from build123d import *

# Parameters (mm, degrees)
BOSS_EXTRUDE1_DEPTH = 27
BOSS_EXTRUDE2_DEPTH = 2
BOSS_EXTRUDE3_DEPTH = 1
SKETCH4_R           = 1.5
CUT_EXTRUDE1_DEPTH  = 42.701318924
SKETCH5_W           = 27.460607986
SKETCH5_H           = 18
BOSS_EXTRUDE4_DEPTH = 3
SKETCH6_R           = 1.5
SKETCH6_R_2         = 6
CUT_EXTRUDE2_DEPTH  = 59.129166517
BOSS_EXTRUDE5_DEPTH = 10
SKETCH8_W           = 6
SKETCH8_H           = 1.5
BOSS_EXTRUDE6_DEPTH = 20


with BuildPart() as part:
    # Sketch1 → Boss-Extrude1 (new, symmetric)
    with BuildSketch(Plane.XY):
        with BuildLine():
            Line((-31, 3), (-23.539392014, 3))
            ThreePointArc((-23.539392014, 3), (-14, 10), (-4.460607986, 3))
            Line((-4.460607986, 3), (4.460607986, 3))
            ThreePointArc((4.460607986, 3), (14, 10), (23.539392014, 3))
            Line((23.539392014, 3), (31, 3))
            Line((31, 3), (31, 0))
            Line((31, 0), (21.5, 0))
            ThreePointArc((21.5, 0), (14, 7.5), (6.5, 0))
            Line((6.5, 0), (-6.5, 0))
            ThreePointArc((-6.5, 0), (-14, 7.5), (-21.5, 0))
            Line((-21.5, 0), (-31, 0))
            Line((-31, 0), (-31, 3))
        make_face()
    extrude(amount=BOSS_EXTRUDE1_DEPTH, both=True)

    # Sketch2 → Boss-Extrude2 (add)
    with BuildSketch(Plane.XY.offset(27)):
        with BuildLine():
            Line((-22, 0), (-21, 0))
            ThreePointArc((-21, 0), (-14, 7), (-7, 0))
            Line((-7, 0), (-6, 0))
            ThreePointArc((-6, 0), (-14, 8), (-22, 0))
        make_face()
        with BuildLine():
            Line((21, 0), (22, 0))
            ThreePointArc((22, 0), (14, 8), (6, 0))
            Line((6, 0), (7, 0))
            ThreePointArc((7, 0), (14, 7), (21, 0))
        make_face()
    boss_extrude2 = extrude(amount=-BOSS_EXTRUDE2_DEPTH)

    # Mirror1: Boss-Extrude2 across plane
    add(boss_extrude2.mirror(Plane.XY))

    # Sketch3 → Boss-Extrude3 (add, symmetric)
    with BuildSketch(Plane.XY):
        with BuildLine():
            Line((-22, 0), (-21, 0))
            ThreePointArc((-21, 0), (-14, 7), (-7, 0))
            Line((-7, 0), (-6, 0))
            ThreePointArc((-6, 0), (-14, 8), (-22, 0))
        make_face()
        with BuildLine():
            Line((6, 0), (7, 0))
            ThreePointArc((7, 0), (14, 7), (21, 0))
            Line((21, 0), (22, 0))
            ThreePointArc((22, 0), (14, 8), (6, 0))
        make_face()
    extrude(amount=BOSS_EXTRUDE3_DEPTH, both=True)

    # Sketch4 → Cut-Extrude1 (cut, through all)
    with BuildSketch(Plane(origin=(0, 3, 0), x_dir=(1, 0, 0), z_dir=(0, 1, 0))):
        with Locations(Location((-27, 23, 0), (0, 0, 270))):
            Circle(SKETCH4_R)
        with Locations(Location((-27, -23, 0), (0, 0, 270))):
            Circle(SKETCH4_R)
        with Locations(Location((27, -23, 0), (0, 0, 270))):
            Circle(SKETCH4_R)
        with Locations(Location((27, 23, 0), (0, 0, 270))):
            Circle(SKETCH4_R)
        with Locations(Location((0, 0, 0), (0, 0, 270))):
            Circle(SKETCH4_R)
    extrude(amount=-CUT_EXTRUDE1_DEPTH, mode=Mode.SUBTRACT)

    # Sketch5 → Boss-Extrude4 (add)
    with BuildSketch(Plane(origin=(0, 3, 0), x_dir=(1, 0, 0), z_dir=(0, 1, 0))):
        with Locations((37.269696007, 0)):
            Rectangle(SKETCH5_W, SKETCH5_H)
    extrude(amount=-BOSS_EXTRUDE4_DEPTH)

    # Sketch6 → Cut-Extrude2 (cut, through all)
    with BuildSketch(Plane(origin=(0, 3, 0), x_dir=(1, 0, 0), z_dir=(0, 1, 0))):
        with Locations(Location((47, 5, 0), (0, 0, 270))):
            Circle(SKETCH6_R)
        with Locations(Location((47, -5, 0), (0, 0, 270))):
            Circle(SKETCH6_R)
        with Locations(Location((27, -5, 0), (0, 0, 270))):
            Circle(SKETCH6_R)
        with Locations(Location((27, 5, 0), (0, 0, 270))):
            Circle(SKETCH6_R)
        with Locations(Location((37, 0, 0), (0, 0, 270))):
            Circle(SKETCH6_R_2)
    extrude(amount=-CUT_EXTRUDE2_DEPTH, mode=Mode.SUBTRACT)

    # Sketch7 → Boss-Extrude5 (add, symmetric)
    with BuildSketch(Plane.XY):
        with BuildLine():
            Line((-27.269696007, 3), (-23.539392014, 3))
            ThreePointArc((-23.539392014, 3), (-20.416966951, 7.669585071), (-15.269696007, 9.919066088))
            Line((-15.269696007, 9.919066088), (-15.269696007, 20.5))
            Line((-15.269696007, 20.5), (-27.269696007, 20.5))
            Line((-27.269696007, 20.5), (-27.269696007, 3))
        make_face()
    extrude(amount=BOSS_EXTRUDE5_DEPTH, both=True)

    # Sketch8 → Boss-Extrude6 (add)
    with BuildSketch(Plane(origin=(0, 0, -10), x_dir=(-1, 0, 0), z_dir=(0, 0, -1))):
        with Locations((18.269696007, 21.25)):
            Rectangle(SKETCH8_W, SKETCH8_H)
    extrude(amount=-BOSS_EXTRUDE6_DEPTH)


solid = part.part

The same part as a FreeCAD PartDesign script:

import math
import FreeCAD as App
import Part
import Sketcher
from FreeCAD import Vector
Q = App.Units.Quantity


def add_polygon(sketch, points):
    """Adds a closed chain of lines whose ends are joined by coincident constraints."""
    first, n = sketch.GeometryCount, len(points)
    for a, b in zip(points, points[1:] + points[:1]):
        sketch.addGeometry(Part.LineSegment(App.Vector(*a, 0), App.Vector(*b, 0)), False)
    for i in range(n):
        sketch.addConstraint(Sketcher.Constraint("Coincident", first + i, 2, first + (i + 1) % n, 1))

doc = App.newDocument("Part")
params = doc.addObject("Spreadsheet::Sheet", "Params")
for row, (alias, value) in enumerate([
    ("sketch1_radius", "10 mm"),
    ("sketch1_radius2", "7.5 mm"),
    ("sketch1_width", "13 mm"),
    ("sketch1_height", "3 mm"),
    ("sketch1_width2", "9.5 mm"),
    ("pad1_length", "54 mm"),
    ("sketch2_radius", "7 mm"),
    ("sketch2_radius2", "8 mm"),
    ("pad2_length", "2 mm"),
    ("sketch3_radius", "7 mm"),
    ("sketch3_radius2", "8 mm"),
    ("pad3_length", "2 mm"),
    ("sketch4_diameter", "3 mm"),
    ("sketch5_height", "18 mm"),
    ("pad4_length", "3 mm"),
    ("sketch6_diameter", "3 mm"),
    ("sketch6_diameter2", "12 mm"),
    ("sketch7_radius", "10 mm"),
    ("sketch7_width", "12 mm"),
    ("sketch7_height", "17.5 mm"),
    ("pad5_length", "20 mm"),
    ("sketch8_width", "6 mm"),
    ("sketch8_height", "1.5 mm"),
    ("pad6_length", "20 mm"),
], start=1):
    params.set(f"A{row}", alias)
    params.set(f"B{row}", "=" + value)
    params.setAlias(f"B{row}", alias)

body = doc.addObject("PartDesign::Body", "Body")

# Sketch on XY plane
sketch1 = body.newObject("Sketcher::SketchObject", "Sketch")
sketch1.AttachmentSupport = (doc.getObject("XY_Plane"), [""])
sketch1.MapMode = "FlatFace"
sketch1.addGeometry(Part.LineSegment(Vector(-23.5, 3, 0), Vector(-31, 3, 0)), False)
sketch1.addGeometry(Part.LineSegment(Vector(-31, 3, 0), Vector(-31, 0, 0)), False)
sketch1.addGeometry(Part.LineSegment(Vector(-31, 0, 0), Vector(-21.5, 0, 0)), False)
sketch1.addGeometry(Part.ArcOfCircle(Part.Circle(Vector(-14, 0, 0), Vector(0, 0, 1), 7.5), math.radians(0), math.radians(180)), False)
sketch1.addGeometry(Part.LineSegment(Vector(-6.5, 0, 0), Vector(6.5, 0, 0)), False)
sketch1.addGeometry(Part.ArcOfCircle(Part.Circle(Vector(14, 0, 0), Vector(0, 0, 1), 7.5), math.radians(0), math.radians(180)), False)
sketch1.addGeometry(Part.LineSegment(Vector(21.5, 0, 0), Vector(31, 0, 0)), False)
sketch1.addGeometry(Part.LineSegment(Vector(31, 0, 0), Vector(31, 3, 0)), False)
sketch1.addGeometry(Part.LineSegment(Vector(31, 3, 0), Vector(23.5, 3, 0)), False)
sketch1.addGeometry(Part.ArcOfCircle(Part.Circle(Vector(14, 0, 0), Vector(0, 0, 1), 10), math.radians(17), math.radians(163)), False)
sketch1.addGeometry(Part.LineSegment(Vector(4.5, 3, 0), Vector(-4.5, 3, 0)), False)
sketch1.addGeometry(Part.ArcOfCircle(Part.Circle(Vector(-14, 0, 0), Vector(0, 0, 1), 10), math.radians(17), math.radians(163)), False)
sketch1.addConstraint(Sketcher.Constraint("Coincident", 0, 2, 1, 1))
sketch1.addConstraint(Sketcher.Constraint("Coincident", 1, 2, 2, 1))
sketch1.addConstraint(Sketcher.Constraint("Coincident", 2, 2, 3, 2))
sketch1.addConstraint(Sketcher.Constraint("Coincident", 3, 1, 4, 1))
sketch1.addConstraint(Sketcher.Constraint("Coincident", 4, 2, 5, 2))
sketch1.addConstraint(Sketcher.Constraint("Coincident", 5, 1, 6, 1))
sketch1.addConstraint(Sketcher.Constraint("Coincident", 6, 2, 7, 1))
sketch1.addConstraint(Sketcher.Constraint("Coincident", 7, 2, 8, 1))
sketch1.addConstraint(Sketcher.Constraint("Coincident", 8, 2, 9, 1))
sketch1.addConstraint(Sketcher.Constraint("Coincident", 9, 2, 10, 1))
sketch1.addConstraint(Sketcher.Constraint("Coincident", 10, 2, 11, 1))
sketch1.addConstraint(Sketcher.Constraint("Coincident", 11, 2, 0, 1))
sketch1.addConstraint(Sketcher.Constraint("Horizontal", 0))
sketch1.addConstraint(Sketcher.Constraint("Vertical", 1))
sketch1.addConstraint(Sketcher.Constraint("Horizontal", 2))
sketch1.addConstraint(Sketcher.Constraint("Horizontal", 4))
sketch1.addConstraint(Sketcher.Constraint("Horizontal", 6))
sketch1.addConstraint(Sketcher.Constraint("Vertical", 7))
sketch1.addConstraint(Sketcher.Constraint("Horizontal", 8))
sketch1.addConstraint(Sketcher.Constraint("Horizontal", 10))
sketch1.addConstraint(Sketcher.Constraint("Coincident", 9, 3, 5, 3))
sketch1.addConstraint(Sketcher.Constraint("Coincident", 11, 3, 3, 3))
sketch1.addConstraint(Sketcher.Constraint("Equal", 3, 5))
sketch1.addConstraint(Sketcher.Constraint("Equal", 9, 11))
sketch1.addConstraint(Sketcher.Constraint("Symmetric", 3, 3, 5, 3, -1, 1))
sketch1.addConstraint(Sketcher.Constraint("Symmetric", 1, 2, 6, 2, -1, 1))
sketch1.addConstraint(Sketcher.Constraint("Symmetric", 8, 2, 11, 2, -2))
sketch1.addConstraint(Sketcher.Constraint("PointOnObject", 1, 2, -1))
sketch1.addConstraint(Sketcher.Constraint("PointOnObject", 3, 1, -1))
sketch1.addConstraint(Sketcher.Constraint("Horizontal", 8, 2, 9, 2))
sketch1.addConstraint(Sketcher.Constraint("Radius", 9, Q("10 mm")))
sketch1.addConstraint(Sketcher.Constraint("Radius", 3, Q("7.5 mm")))
sketch1.addConstraint(Sketcher.Constraint("DistanceX", 4, 1, 4, 2, Q("13 mm")))
sketch1.addConstraint(Sketcher.Constraint("DistanceY", 1, 2, 1, 1, Q("3 mm")))
sketch1.addConstraint(Sketcher.Constraint("DistanceX", 2, 1, 2, 2, Q("9.5 mm")))
sketch1.setExpression("Constraints[30]", "Params.sketch1_radius")
sketch1.setExpression("Constraints[31]", "Params.sketch1_radius2")
sketch1.setExpression("Constraints[32]", "Params.sketch1_width")
sketch1.setExpression("Constraints[33]", "Params.sketch1_height")
sketch1.setExpression("Constraints[34]", "Params.sketch1_width2")
pad1 = body.newObject("PartDesign::Pad", "Pad")
pad1.Profile = sketch1
pad1.setExpression("Length", "Params.pad1_length")
pad1.Midplane = True

# Sketch on XY plane
sketch2 = body.newObject("Sketcher::SketchObject", "Sketch001")
sketch2.AttachmentSupport = (doc.getObject("XY_Plane"), [""])
sketch2.MapMode = "FlatFace"
sketch2.AttachmentOffset = App.Placement(Vector(0, 0, 27), App.Rotation())
sketch2.addGeometry(Part.LineSegment(Vector(-22, 0, 0), Vector(-21, 0, 0)), False)
sketch2.addGeometry(Part.ArcOfCircle(Part.Circle(Vector(-14, 0, 0), Vector(0, 0, 1), 7), math.radians(0), math.radians(180)), False)
sketch2.addGeometry(Part.LineSegment(Vector(-7, 0, 0), Vector(-6, 0, 0)), False)
sketch2.addGeometry(Part.ArcOfCircle(Part.Circle(Vector(-14, 0, 0), Vector(0, 0, 1), 8), math.radians(0), math.radians(180)), False)
sketch2.addGeometry(Part.LineSegment(Vector(21, 0, 0), Vector(22, 0, 0)), False)
sketch2.addGeometry(Part.ArcOfCircle(Part.Circle(Vector(14, 0, 0), Vector(0, 0, 1), 8), math.radians(0), math.radians(180)), False)
sketch2.addGeometry(Part.LineSegment(Vector(6, 0, 0), Vector(7, 0, 0)), False)
sketch2.addGeometry(Part.ArcOfCircle(Part.Circle(Vector(14, 0, 0), Vector(0, 0, 1), 7), math.radians(0), math.radians(180)), False)
sketch2.addConstraint(Sketcher.Constraint("Coincident", 0, 2, 1, 2))
sketch2.addConstraint(Sketcher.Constraint("Coincident", 1, 1, 2, 1))
sketch2.addConstraint(Sketcher.Constraint("Coincident", 2, 2, 3, 1))
sketch2.addConstraint(Sketcher.Constraint("Coincident", 3, 2, 0, 1))
sketch2.addConstraint(Sketcher.Constraint("Coincident", 4, 2, 5, 1))
sketch2.addConstraint(Sketcher.Constraint("Coincident", 5, 2, 6, 1))
sketch2.addConstraint(Sketcher.Constraint("Coincident", 6, 2, 7, 2))
sketch2.addConstraint(Sketcher.Constraint("Coincident", 7, 1, 4, 1))
sketch2.addConstraint(Sketcher.Constraint("Horizontal", 0))
sketch2.addConstraint(Sketcher.Constraint("Horizontal", 2))
sketch2.addConstraint(Sketcher.Constraint("Horizontal", 4))
sketch2.addConstraint(Sketcher.Constraint("Horizontal", 6))
sketch2.addConstraint(Sketcher.Constraint("Coincident", 3, 3, 1, 3))
sketch2.addConstraint(Sketcher.Constraint("Coincident", 7, 3, 5, 3))
sketch2.addConstraint(Sketcher.Constraint("Equal", 3, 5))
sketch2.addConstraint(Sketcher.Constraint("Equal", 1, 7))
sketch2.addConstraint(Sketcher.Constraint("Symmetric", 1, 3, 5, 3, -1, 1))
sketch2.addConstraint(Sketcher.Constraint("PointOnObject", 1, 3, -1))
sketch2.addConstraint(Sketcher.Constraint("PointOnObject", 0, 2, -1))
sketch2.addConstraint(Sketcher.Constraint("PointOnObject", 1, 1, -1))
sketch2.addConstraint(Sketcher.Constraint("PointOnObject", 4, 2, -1))
sketch2.addConstraint(Sketcher.Constraint("PointOnObject", 5, 2, -1))
sketch2.addConstraint(Sketcher.Constraint("Radius", 1, Q("7 mm")))
sketch2.addConstraint(Sketcher.Constraint("Radius", 3, Q("8 mm")))
sketch2.addConstraint(Sketcher.Constraint("DistanceX", 1, 3, -1, 1, Q("14 mm")))
sketch2.setExpression("Constraints[22]", "Params.sketch2_radius")
sketch2.setExpression("Constraints[23]", "Params.sketch2_radius2")
pad2 = body.newObject("PartDesign::Pad", "Pad001")
pad2.Profile = sketch2
pad2.setExpression("Length", "Params.pad2_length")
pad2.Reversed = True
doc.recompute()

mirrored = body.newObject("PartDesign::Mirrored", "Mirrored")
mirrored.Originals = [pad2]
mirrored.MirrorPlane = (doc.getObject("XY_Plane"), [""])
body.Tip = mirrored

# Sketch on XY plane
sketch3 = body.newObject("Sketcher::SketchObject", "Sketch002")
sketch3.AttachmentSupport = (doc.getObject("XY_Plane"), [""])
sketch3.MapMode = "FlatFace"
sketch3.addGeometry(Part.LineSegment(Vector(-22, 0, 0), Vector(-21, 0, 0)), False)
sketch3.addGeometry(Part.ArcOfCircle(Part.Circle(Vector(-14, 0, 0), Vector(0, 0, 1), 7), math.radians(0), math.radians(180)), False)
sketch3.addGeometry(Part.LineSegment(Vector(-7, 0, 0), Vector(-6, 0, 0)), False)
sketch3.addGeometry(Part.ArcOfCircle(Part.Circle(Vector(-14, 0, 0), Vector(0, 0, 1), 8), math.radians(0), math.radians(180)), False)
sketch3.addGeometry(Part.LineSegment(Vector(6, 0, 0), Vector(7, 0, 0)), False)
sketch3.addGeometry(Part.ArcOfCircle(Part.Circle(Vector(14, 0, 0), Vector(0, 0, 1), 7), math.radians(0), math.radians(180)), False)
sketch3.addGeometry(Part.LineSegment(Vector(21, 0, 0), Vector(22, 0, 0)), False)
sketch3.addGeometry(Part.ArcOfCircle(Part.Circle(Vector(14, 0, 0), Vector(0, 0, 1), 8), math.radians(0), math.radians(180)), False)
sketch3.addConstraint(Sketcher.Constraint("Coincident", 0, 2, 1, 2))
sketch3.addConstraint(Sketcher.Constraint("Coincident", 1, 1, 2, 1))
sketch3.addConstraint(Sketcher.Constraint("Coincident", 2, 2, 3, 1))
sketch3.addConstraint(Sketcher.Constraint("Coincident", 3, 2, 0, 1))
sketch3.addConstraint(Sketcher.Constraint("Coincident", 4, 2, 5, 2))
sketch3.addConstraint(Sketcher.Constraint("Coincident", 5, 1, 6, 1))
sketch3.addConstraint(Sketcher.Constraint("Coincident", 6, 2, 7, 1))
sketch3.addConstraint(Sketcher.Constraint("Coincident", 7, 2, 4, 1))
sketch3.addConstraint(Sketcher.Constraint("Horizontal", 0))
sketch3.addConstraint(Sketcher.Constraint("Horizontal", 2))
sketch3.addConstraint(Sketcher.Constraint("Horizontal", 4))
sketch3.addConstraint(Sketcher.Constraint("Horizontal", 6))
sketch3.addConstraint(Sketcher.Constraint("Coincident", 3, 3, 1, 3))
sketch3.addConstraint(Sketcher.Constraint("Coincident", 7, 3, 5, 3))
sketch3.addConstraint(Sketcher.Constraint("Equal", 1, 5))
sketch3.addConstraint(Sketcher.Constraint("Equal", 3, 7))
sketch3.addConstraint(Sketcher.Constraint("Symmetric", 1, 3, 5, 3, -1, 1))
sketch3.addConstraint(Sketcher.Constraint("PointOnObject", 1, 3, -1))
sketch3.addConstraint(Sketcher.Constraint("PointOnObject", 0, 2, -1))
sketch3.addConstraint(Sketcher.Constraint("PointOnObject", 1, 1, -1))
sketch3.addConstraint(Sketcher.Constraint("PointOnObject", 4, 2, -1))
sketch3.addConstraint(Sketcher.Constraint("PointOnObject", 5, 1, -1))
sketch3.addConstraint(Sketcher.Constraint("Radius", 1, Q("7 mm")))
sketch3.addConstraint(Sketcher.Constraint("Radius", 3, Q("8 mm")))
sketch3.addConstraint(Sketcher.Constraint("DistanceX", 1, 3, -1, 1, Q("14 mm")))
sketch3.setExpression("Constraints[22]", "Params.sketch3_radius")
sketch3.setExpression("Constraints[23]", "Params.sketch3_radius2")
pad3 = body.newObject("PartDesign::Pad", "Pad002")
pad3.Profile = sketch3
pad3.setExpression("Length", "Params.pad3_length")
pad3.Midplane = True

# Sketch on XZ plane
sketch4 = body.newObject("Sketcher::SketchObject", "Sketch003")
sketch4.AttachmentSupport = (doc.getObject("XZ_Plane"), [""])
sketch4.MapMode = "FlatFace"
sketch4.AttachmentOffset = App.Placement(Vector(0, 0, -3), App.Rotation())
sketch4.addGeometry(Part.Circle(Vector(-27, -23, 0), Vector(0, 0, 1), 1.5), False)
sketch4.addGeometry(Part.Circle(Vector(-27, 23, 0), Vector(0, 0, 1), 1.5), False)
sketch4.addGeometry(Part.Circle(Vector(27, 23, 0), Vector(0, 0, 1), 1.5), False)
sketch4.addGeometry(Part.Circle(Vector(27, -23, 0), Vector(0, 0, 1), 1.5), False)
sketch4.addGeometry(Part.Circle(Vector(0, 0, 0), Vector(0, 0, 1), 1.5), False)
sketch4.addConstraint(Sketcher.Constraint("Coincident", 4, 3, -1, 1))
sketch4.addConstraint(Sketcher.Constraint("Equal", 0, 1))
sketch4.addConstraint(Sketcher.Constraint("Equal", 1, 2))
sketch4.addConstraint(Sketcher.Constraint("Equal", 2, 3))
sketch4.addConstraint(Sketcher.Constraint("Equal", 3, 4))
sketch4.addConstraint(Sketcher.Constraint("Symmetric", 0, 3, 2, 3, -1, 1))
sketch4.addConstraint(Sketcher.Constraint("Symmetric", 1, 3, 3, 3, -1, 1))
sketch4.addConstraint(Sketcher.Constraint("Symmetric", 1, 3, 2, 3, -2))
sketch4.addConstraint(Sketcher.Constraint("Diameter", 0, Q("3 mm")))
sketch4.addConstraint(Sketcher.Constraint("DistanceX", 0, 3, -1, 1, Q("27 mm")))
sketch4.addConstraint(Sketcher.Constraint("DistanceY", 0, 3, -1, 1, Q("23 mm")))
sketch4.setExpression("Constraints[8]", "Params.sketch4_diameter")
pocket1 = body.newObject("PartDesign::Pocket", "Pocket")
pocket1.Profile = sketch4
pocket1.Type = "ThroughAll"
pocket1.Reversed = True

# Sketch on XZ plane
sketch5 = body.newObject("Sketcher::SketchObject", "Sketch004")
sketch5.AttachmentSupport = (doc.getObject("XZ_Plane"), [""])
sketch5.MapMode = "FlatFace"
sketch5.AttachmentOffset = App.Placement(Vector(0, 0, -3), App.Rotation())
add_polygon(sketch5, [(24, -9), (24, 9), (51, 9), (51, -9)])  # lines 0-3
sketch5.addConstraint(Sketcher.Constraint("Vertical", 0))
sketch5.addConstraint(Sketcher.Constraint("Horizontal", 1))
sketch5.addConstraint(Sketcher.Constraint("Vertical", 2))
sketch5.addConstraint(Sketcher.Constraint("Horizontal", 3))
sketch5.addConstraint(Sketcher.Constraint("DistanceY", 0, 1, 0, 2, Q("18 mm")))
sketch5.addConstraint(Sketcher.Constraint("DistanceY", -1, 1, 0, 2, Q("9 mm")))
sketch5.addConstraint(Sketcher.Constraint("DistanceX", -1, 1, 1, 2, Q("51 mm")))
sketch5.addConstraint(Sketcher.Constraint("DistanceX", 1, 1, 1, 2, Q("27.460608 mm")))
sketch5.setExpression("Constraints[8]", "Params.sketch5_height")
pad4 = body.newObject("PartDesign::Pad", "Pad003")
pad4.Profile = sketch5
pad4.setExpression("Length", "Params.pad4_length")

# Sketch on XZ plane
sketch6 = body.newObject("Sketcher::SketchObject", "Sketch005")
sketch6.AttachmentSupport = (doc.getObject("XZ_Plane"), [""])
sketch6.MapMode = "FlatFace"
sketch6.AttachmentOffset = App.Placement(Vector(0, 0, -3), App.Rotation())
sketch6.addGeometry(Part.Circle(Vector(47, -5, 0), Vector(0, 0, 1), 1.5), False)
sketch6.addGeometry(Part.Circle(Vector(47, 5, 0), Vector(0, 0, 1), 1.5), False)
sketch6.addGeometry(Part.Circle(Vector(27, 5, 0), Vector(0, 0, 1), 1.5), False)
sketch6.addGeometry(Part.Circle(Vector(27, -5, 0), Vector(0, 0, 1), 1.5), False)
sketch6.addGeometry(Part.Circle(Vector(37, 0, 0), Vector(0, 0, 1), 6), False)
sketch6.addConstraint(Sketcher.Constraint("Equal", 0, 1))
sketch6.addConstraint(Sketcher.Constraint("Equal", 1, 2))
sketch6.addConstraint(Sketcher.Constraint("Equal", 2, 3))
sketch6.addConstraint(Sketcher.Constraint("Symmetric", 0, 3, 1, 3, -1))
sketch6.addConstraint(Sketcher.Constraint("Symmetric", 2, 3, 3, 3, -1))
sketch6.addConstraint(Sketcher.Constraint("PointOnObject", 4, 3, -1))
sketch6.addConstraint(Sketcher.Constraint("Horizontal", 1, 3, 2, 3))
sketch6.addConstraint(Sketcher.Constraint("Diameter", 0, Q("3 mm")))
sketch6.addConstraint(Sketcher.Constraint("Diameter", 4, Q("12 mm")))
sketch6.addConstraint(Sketcher.Constraint("DistanceX", -1, 1, 0, 3, Q("47 mm")))
sketch6.addConstraint(Sketcher.Constraint("DistanceY", 0, 3, -1, 1, Q("5 mm")))
sketch6.addConstraint(Sketcher.Constraint("DistanceX", -1, 1, 2, 3, Q("27 mm")))
sketch6.addConstraint(Sketcher.Constraint("DistanceX", -1, 1, 4, 3, Q("37 mm")))
sketch6.setExpression("Constraints[7]", "Params.sketch6_diameter")
sketch6.setExpression("Constraints[8]", "Params.sketch6_diameter2")
pocket2 = body.newObject("PartDesign::Pocket", "Pocket001")
pocket2.Profile = sketch6
pocket2.Type = "ThroughAll"
pocket2.Reversed = True

# Sketch on XY plane
sketch7 = body.newObject("Sketcher::SketchObject", "Sketch006")
sketch7.AttachmentSupport = (doc.getObject("XY_Plane"), [""])
sketch7.MapMode = "FlatFace"
sketch7.addGeometry(Part.LineSegment(Vector(-27.3, 3, 0), Vector(-23.5, 3, 0)), False)
sketch7.addGeometry(Part.ArcOfCircle(Part.Circle(Vector(-14, 0, 0), Vector(0, 0, 1), 10), math.radians(97), math.radians(163)), False)
sketch7.addGeometry(Part.LineSegment(Vector(-15.3, 9.9, 0), Vector(-15.3, 20.5, 0)), False)
sketch7.addGeometry(Part.LineSegment(Vector(-15.3, 20.5, 0), Vector(-27.3, 20.5, 0)), False)
sketch7.addGeometry(Part.LineSegment(Vector(-27.3, 20.5, 0), Vector(-27.3, 3, 0)), False)
sketch7.addConstraint(Sketcher.Constraint("Coincident", 0, 2, 1, 2))
sketch7.addConstraint(Sketcher.Constraint("Coincident", 1, 1, 2, 1))
sketch7.addConstraint(Sketcher.Constraint("Coincident", 2, 2, 3, 1))
sketch7.addConstraint(Sketcher.Constraint("Coincident", 3, 2, 4, 1))
sketch7.addConstraint(Sketcher.Constraint("Coincident", 4, 2, 0, 1))
sketch7.addConstraint(Sketcher.Constraint("Horizontal", 0))
sketch7.addConstraint(Sketcher.Constraint("Vertical", 2))
sketch7.addConstraint(Sketcher.Constraint("Horizontal", 3))
sketch7.addConstraint(Sketcher.Constraint("Vertical", 4))
sketch7.addConstraint(Sketcher.Constraint("PointOnObject", 1, 3, -1))
sketch7.addConstraint(Sketcher.Constraint("Radius", 1, Q("10 mm")))
sketch7.addConstraint(Sketcher.Constraint("DistanceX", 3, 2, 3, 1, Q("12 mm")))
sketch7.addConstraint(Sketcher.Constraint("DistanceY", 4, 2, 4, 1, Q("17.5 mm")))
sketch7.addConstraint(Sketcher.Constraint("DistanceX", 1, 3, -1, 1, Q("14 mm")))
sketch7.addConstraint(Sketcher.Constraint("DistanceY", -1, 1, 0, 2, Q("3 mm")))
sketch7.addConstraint(Sketcher.Constraint("DistanceX", 0, 1, 0, 2, Q("3.730304 mm")))
sketch7.setExpression("Constraints[10]", "Params.sketch7_radius")
sketch7.setExpression("Constraints[11]", "Params.sketch7_width")
sketch7.setExpression("Constraints[12]", "Params.sketch7_height")
pad5 = body.newObject("PartDesign::Pad", "Pad004")
pad5.Profile = sketch7
pad5.setExpression("Length", "Params.pad5_length")
pad5.Midplane = True

# Sketch on XY plane
sketch8 = body.newObject("Sketcher::SketchObject", "Sketch007")
sketch8.AttachmentSupport = (doc.getObject("XY_Plane"), [""])
sketch8.MapMode = "FlatFace"
sketch8.AttachmentOffset = App.Placement(Vector(0, 0, -10), App.Rotation())
add_polygon(sketch8, [(-15.3, 22), (-15.3, 20.5), (-21.3, 20.5), (-21.3, 22)])  # lines 0-3
sketch8.addConstraint(Sketcher.Constraint("Vertical", 0))
sketch8.addConstraint(Sketcher.Constraint("Horizontal", 1))
sketch8.addConstraint(Sketcher.Constraint("Vertical", 2))
sketch8.addConstraint(Sketcher.Constraint("Horizontal", 3))
sketch8.addConstraint(Sketcher.Constraint("DistanceX", 1, 2, 1, 1, Q("6 mm")))
sketch8.addConstraint(Sketcher.Constraint("DistanceY", 0, 2, 0, 1, Q("1.5 mm")))
sketch8.addConstraint(Sketcher.Constraint("DistanceY", -1, 1, 2, 2, Q("22 mm")))
sketch8.addConstraint(Sketcher.Constraint("DistanceX", 0, 2, -1, 1, Q("15.269696 mm")))
sketch8.setExpression("Constraints[8]", "Params.sketch8_width")
sketch8.setExpression("Constraints[9]", "Params.sketch8_height")
pad6 = body.newObject("PartDesign::Pad", "Pad005")
pad6.Profile = sketch8
pad6.setExpression("Length", "Params.pad6_length")

doc.recompute()
